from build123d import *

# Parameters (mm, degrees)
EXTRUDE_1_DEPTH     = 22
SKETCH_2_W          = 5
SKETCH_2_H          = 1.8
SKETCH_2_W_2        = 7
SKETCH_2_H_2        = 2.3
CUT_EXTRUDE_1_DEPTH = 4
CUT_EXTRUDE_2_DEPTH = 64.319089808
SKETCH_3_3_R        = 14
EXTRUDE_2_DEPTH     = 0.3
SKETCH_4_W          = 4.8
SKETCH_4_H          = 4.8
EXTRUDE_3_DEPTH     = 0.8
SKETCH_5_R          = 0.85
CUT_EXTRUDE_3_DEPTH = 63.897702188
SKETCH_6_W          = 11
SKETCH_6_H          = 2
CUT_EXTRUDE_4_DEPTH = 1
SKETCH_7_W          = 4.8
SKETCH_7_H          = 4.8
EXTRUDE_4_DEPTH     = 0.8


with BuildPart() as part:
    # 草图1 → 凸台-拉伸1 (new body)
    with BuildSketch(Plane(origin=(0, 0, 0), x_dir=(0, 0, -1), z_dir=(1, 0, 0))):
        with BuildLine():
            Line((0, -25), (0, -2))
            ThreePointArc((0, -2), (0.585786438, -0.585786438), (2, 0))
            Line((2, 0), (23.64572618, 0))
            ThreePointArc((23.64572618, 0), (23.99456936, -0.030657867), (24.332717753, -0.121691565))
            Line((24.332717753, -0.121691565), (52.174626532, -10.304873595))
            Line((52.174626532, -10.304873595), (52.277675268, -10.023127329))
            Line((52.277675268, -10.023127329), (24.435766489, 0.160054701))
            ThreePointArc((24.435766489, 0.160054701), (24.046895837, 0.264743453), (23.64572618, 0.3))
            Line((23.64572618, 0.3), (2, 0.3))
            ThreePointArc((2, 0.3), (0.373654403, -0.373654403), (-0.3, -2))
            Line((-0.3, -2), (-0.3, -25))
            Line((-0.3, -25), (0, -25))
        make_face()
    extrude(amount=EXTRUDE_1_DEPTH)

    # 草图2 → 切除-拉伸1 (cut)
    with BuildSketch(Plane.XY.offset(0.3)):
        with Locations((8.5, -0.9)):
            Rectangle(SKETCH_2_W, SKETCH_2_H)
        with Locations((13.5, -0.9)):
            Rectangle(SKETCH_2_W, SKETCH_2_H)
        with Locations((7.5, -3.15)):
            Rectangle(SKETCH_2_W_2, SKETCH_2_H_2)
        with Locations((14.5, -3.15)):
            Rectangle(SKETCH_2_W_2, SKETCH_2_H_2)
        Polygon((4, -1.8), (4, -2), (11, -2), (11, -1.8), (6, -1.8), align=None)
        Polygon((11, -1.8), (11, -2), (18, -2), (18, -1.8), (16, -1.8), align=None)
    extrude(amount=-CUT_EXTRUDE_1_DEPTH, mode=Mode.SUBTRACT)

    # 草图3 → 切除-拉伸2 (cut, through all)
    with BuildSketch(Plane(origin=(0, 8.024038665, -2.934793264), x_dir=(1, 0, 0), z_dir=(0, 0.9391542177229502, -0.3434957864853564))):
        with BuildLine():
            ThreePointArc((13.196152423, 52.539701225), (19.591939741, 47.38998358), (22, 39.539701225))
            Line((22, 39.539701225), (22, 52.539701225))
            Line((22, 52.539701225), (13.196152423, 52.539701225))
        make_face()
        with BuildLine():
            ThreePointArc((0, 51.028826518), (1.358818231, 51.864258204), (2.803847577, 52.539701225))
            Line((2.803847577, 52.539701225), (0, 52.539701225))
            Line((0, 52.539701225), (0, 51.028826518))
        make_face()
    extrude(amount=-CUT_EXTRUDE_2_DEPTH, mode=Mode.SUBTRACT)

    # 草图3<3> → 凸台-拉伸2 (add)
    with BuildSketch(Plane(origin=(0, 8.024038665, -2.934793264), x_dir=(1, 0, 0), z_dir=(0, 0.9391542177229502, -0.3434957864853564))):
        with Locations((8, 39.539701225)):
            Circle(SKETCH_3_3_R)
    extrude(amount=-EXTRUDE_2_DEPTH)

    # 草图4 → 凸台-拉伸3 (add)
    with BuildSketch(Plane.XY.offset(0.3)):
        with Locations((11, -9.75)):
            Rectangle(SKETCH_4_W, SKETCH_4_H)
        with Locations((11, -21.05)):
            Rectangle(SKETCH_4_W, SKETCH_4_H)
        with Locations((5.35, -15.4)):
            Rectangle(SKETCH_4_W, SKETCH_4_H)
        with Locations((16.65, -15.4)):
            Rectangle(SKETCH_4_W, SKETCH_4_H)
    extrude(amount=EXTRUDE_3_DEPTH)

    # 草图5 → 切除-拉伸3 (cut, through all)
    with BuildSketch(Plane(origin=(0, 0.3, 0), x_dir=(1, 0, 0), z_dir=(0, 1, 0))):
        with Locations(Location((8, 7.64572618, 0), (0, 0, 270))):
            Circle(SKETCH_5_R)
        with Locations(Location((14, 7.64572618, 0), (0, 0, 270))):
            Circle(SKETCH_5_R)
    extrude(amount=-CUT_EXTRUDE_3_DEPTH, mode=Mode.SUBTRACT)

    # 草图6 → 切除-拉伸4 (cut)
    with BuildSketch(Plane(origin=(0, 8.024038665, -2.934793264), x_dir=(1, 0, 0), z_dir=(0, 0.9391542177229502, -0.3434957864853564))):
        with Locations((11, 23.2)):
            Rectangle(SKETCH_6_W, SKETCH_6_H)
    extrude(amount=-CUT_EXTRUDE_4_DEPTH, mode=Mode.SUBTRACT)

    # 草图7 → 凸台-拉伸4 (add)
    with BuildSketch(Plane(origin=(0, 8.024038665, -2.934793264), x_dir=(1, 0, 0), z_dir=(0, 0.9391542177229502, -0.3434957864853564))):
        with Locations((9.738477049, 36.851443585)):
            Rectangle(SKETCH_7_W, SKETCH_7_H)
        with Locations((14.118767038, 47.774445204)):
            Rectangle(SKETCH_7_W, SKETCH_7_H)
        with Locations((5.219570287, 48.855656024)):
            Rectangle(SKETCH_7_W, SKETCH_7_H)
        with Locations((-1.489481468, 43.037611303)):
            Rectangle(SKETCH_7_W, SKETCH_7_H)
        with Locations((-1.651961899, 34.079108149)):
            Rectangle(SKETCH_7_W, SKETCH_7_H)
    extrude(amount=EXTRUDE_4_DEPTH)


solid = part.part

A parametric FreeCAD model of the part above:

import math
import FreeCAD as App
import Part
import Sketcher
Q = App.Units.Quantity

doc = App.newDocument("Part")
body = doc.addObject("PartDesign::Body", "Body")

# Sketch on YZ plane
sketch1 = body.newObject("Sketcher::SketchObject", "Sketch")
sketch1.AttachmentSupport = (doc.getObject("YZ_Plane"), [""])
sketch1.MapMode = "FlatFace"
sketch1.addGeometry(Part.LineSegment(App.Vector(-25, 0, 0), App.Vector(-2, 0, 0)), False)
sketch1.addGeometry(Part.ArcOfCircle(Part.Circle(App.Vector(-2, -2, 0), App.Vector(0, 0, 1), 2), math.radians(0), math.radians(90)), False)
sketch1.addGeometry(Part.LineSegment(App.Vector(0, -2, 0), App.Vector(0, -23.65, 0)), False)
sketch1.addGeometry(Part.ArcOfCircle(Part.Circle(App.Vector(-2, -23.65, 0), App.Vector(0, 0, 1), 2), math.radians(-20), math.radians(0)), False)
sketch1.addGeometry(Part.LineSegment(App.Vector(-0.12, -24.33, 0), App.Vector(-10.3, -52.17, 0)), False)
sketch1.addGeometry(Part.LineSegment(App.Vector(-10.3, -52.17, 0), App.Vector(-10.02, -52.28, 0)), False)
sketch1.addGeometry(Part.LineSegment(App.Vector(-10.02, -52.28, 0), App.Vector(0.16, -24.44, 0)), False)
sketch1.addGeometry(Part.ArcOfCircle(Part.Circle(App.Vector(-2, -23.65, 0), App.Vector(0, 0, 1), 2.3), math.radians(-20), math.radians(0)), False)
sketch1.addGeometry(Part.LineSegment(App.Vector(0.3, -23.65, 0), App.Vector(0.3, -2, 0)), False)
sketch1.addGeometry(Part.ArcOfCircle(Part.Circle(App.Vector(-2, -2, 0), App.Vector(0, 0, 1), 2.3), math.radians(0), math.radians(90)), False)
sketch1.addGeometry(Part.LineSegment(App.Vector(-2, 0.3, 0), App.Vector(-25, 0.3, 0)), False)
sketch1.addGeometry(Part.LineSegment(App.Vector(-25, 0.3, 0), App.Vector(-25, 0, 0)), False)
sketch1.addConstraint(Sketcher.Constraint("Tangent", 0, 2, 1, 2))
sketch1.addConstraint(Sketcher.Constraint("Tangent", 1, 1, 2, 1))
sketch1.addConstraint(Sketcher.Constraint("Tangent", 2, 2, 3, 2))
sketch1.addConstraint(Sketcher.Constraint("Tangent", 3, 1, 4, 1))
sketch1.addConstraint(Sketcher.Constraint("Coincident", 4, 2, 5, 1))
sketch1.addConstraint(Sketcher.Constraint("Coincident", 5, 2, 6, 1))
sketch1.addConstraint(Sketcher.Constraint("Tangent", 6, 2, 7, 1))
sketch1.addConstraint(Sketcher.Constraint("Tangent", 7, 2, 8, 1))
sketch1.addConstraint(Sketcher.Constraint("Tangent", 8, 2, 9, 1))
sketch1.addConstraint(Sketcher.Constraint("Tangent", 9, 2, 10, 1))
sketch1.addConstraint(Sketcher.Constraint("Coincident", 10, 2, 11, 1))
sketch1.addConstraint(Sketcher.Constraint("Coincident", 11, 2, 0, 1))
sketch1.addConstraint(Sketcher.Constraint("Horizontal", 0))
sketch1.addConstraint(Sketcher.Constraint("Vertical", 2))
sketch1.addConstraint(Sketcher.Constraint("Vertical", 8))
sketch1.addConstraint(Sketcher.Constraint("Horizontal", 10))
sketch1.addConstraint(Sketcher.Constraint("Vertical", 11))
sketch1.addConstraint(Sketcher.Constraint("Coincident", 7, 3, 3, 3))
sketch1.addConstraint(Sketcher.Constraint("Coincident", 9, 3, 1, 3))
sketch1.addConstraint(Sketcher.Constraint("Equal", 1, 3))
sketch1.addConstraint(Sketcher.Constraint("PointOnObject", 0, 2, -1))
sketch1.addConstraint(Sketcher.Constraint("PointOnObject", 1, 1, -2))
sketch1.addConstraint(Sketcher.Constraint("Perpendicular", 4, 5))
sketch1.addConstraint(Sketcher.Constraint("Perpendicular", 5, 6))
sketch1.addConstraint(Sketcher.Constraint("Radius", 1, 2.0))
sketch1.addConstraint(Sketcher.Constraint("Radius", 7, 2.3))
sketch1.addConstraint(Sketcher.Constraint("DistanceX", 0, 1, 0, 2, 23.0))
sketch1.addConstraint(Sketcher.Constraint("Angle", 4, Q("-110.09 deg")))
sketch1.addConstraint(Sketcher.Constraint("DistanceY", 4, 2, 7, 3, 28.5289))
sketch1.addConstraint(Sketcher.Constraint("DistanceY", 2, 2, 2, 1, 21.645726))
pad1 = body.newObject("PartDesign::Pad", "Pad")
pad1.Profile = sketch1
pad1.Length = 22

# Sketch on XY plane
sketch2 = body.newObject("Sketcher::SketchObject", "Sketch001")
sketch2.AttachmentSupport = (doc.getObject("XY_Plane"), [""])
sketch2.MapMode = "FlatFace"
sketch2.AttachmentOffset = App.Placement(App.Vector(0, 0, 0.3), App.Rotation())
sketch2.addGeometry(Part.LineSegment(App.Vector(6, 0, 0), App.Vector(6, -1.8, 0)), False)
sketch2.addGeometry(Part.LineSegment(App.Vector(6, -1.8, 0), App.Vector(4, -1.8, 0)), False)
sketch2.addGeometry(Part.LineSegment(App.Vector(4, -1.8, 0), App.Vector(4, -4.3, 0)), False)
sketch2.addGeometry(Part.LineSegment(App.Vector(4, -4.3, 0), App.Vector(18, -4.3, 0)), False)
sketch2.addGeometry(Part.LineSegment(App.Vector(18, -4.3, 0), App.Vector(18, -1.8, 0)), False)
sketch2.addGeometry(Part.LineSegment(App.Vector(18, -1.8, 0), App.Vector(16, -1.8, 0)), False)
sketch2.addGeometry(Part.LineSegment(App.Vector(16, -1.8, 0), App.Vector(16, 0, 0)), False)
sketch2.addGeometry(Part.LineSegment(App.Vector(16, 0, 0), App.Vector(6, 0, 0)), False)
sketch2.addConstraint(Sketcher.Constraint("Coincident", 0, 2, 1, 1))
sketch2.addConstraint(Sketcher.Constraint("Coincident", 1, 2, 2, 1))
sketch2.addConstraint(Sketcher.Constraint("Coincident", 2, 2, 3, 1))
sketch2.addConstraint(Sketcher.Constraint("Coincident", 3, 2, 4, 1))
sketch2.addConstraint(Sketcher.Constraint("Coincident", 4, 2, 5, 1))
sketch2.addConstraint(Sketcher.Constraint("Coincident", 5, 2, 6, 1))
sketch2.addConstraint(Sketcher.Constraint("Coincident", 6, 2, 7, 1))
sketch2.addConstraint(Sketcher.Constraint("Coincident", 7, 2, 0, 1))
sketch2.addConstraint(Sketcher.Constraint("Vertical", 0))
sketch2.addConstraint(Sketcher.Constraint("Horizontal", 1))
sketch2.addConstraint(Sketcher.Constraint("Vertical", 2))
sketch2.addConstraint(Sketcher.Constraint("Horizontal", 3))
sketch2.addConstraint(Sketcher.Constraint("Vertical", 4))
sketch2.addConstraint(Sketcher.Constraint("Horizontal", 5))
sketch2.addConstraint(Sketcher.Constraint("Vertical", 6))
sketch2.addConstraint(Sketcher.Constraint("Horizontal", 7))
sketch2.addConstraint(Sketcher.Constraint("PointOnObject", 6, 2, -1))
sketch2.addConstraint(Sketcher.Constraint("Horizontal", 1, 2, 4, 2))
sketch2.addConstraint(Sketcher.Constraint("Equal", 1, 5))
sketch2.addConstraint(Sketcher.Constraint("DistanceX", 1, 2, 1, 1, 2.0))
sketch2.addConstraint(Sketcher.Constraint("DistanceX", 3, 1, 3, 2, 14.0))
sketch2.addConstraint(Sketcher.Constraint("DistanceY", 0, 2, 0, 1, 1.8))
sketch2.addConstraint(Sketcher.Constraint("DistanceY", 2, 2, 2, 1, 2.5))
sketch2.addConstraint(Sketcher.Constraint("DistanceX", -1, 1, 0, 2, 6.0))
pocket1 = body.newObject("PartDesign::Pocket", "Pocket")
pocket1.Profile = sketch2
pocket1.Length = 4

# Sketch on an angled plane
sketch3 = body.newObject("Sketcher::SketchObject", "Sketch002")
sketch3.Placement = App.Placement(App.Vector(0, 8.024039, -2.934793), App.Rotation(App.Vector(1, 0, 0), App.Vector(0, -0.343495786, -0.939154218), App.Vector(0, 0.939154218, -0.343495786), "ZXY"))
sketch3.addGeometry(Part.ArcOfCircle(Part.Circle(App.Vector(8, 39.5, 0), App.Vector(0, 0, 1), 14), math.radians(0), math.radians(68)), False)
sketch3.addGeometry(Part.LineSegment(App.Vector(22, 39.5, 0), App.Vector(22, 52.5, 0)), False)
sketch3.addGeometry(Part.LineSegment(App.Vector(22, 52.5, 0), App.Vector(13.2, 52.5, 0)), False)
sketch3.addGeometry(Part.ArcOfCircle(Part.Circle(App.Vector(8, 39.5, 0), App.Vector(0, 0, 1), 14), math.radians(111.79), math.radians(124.85)), False)
sketch3.addGeometry(Part.LineSegment(App.Vector(2.8, 52.5, 0), App.Vector(0, 52.5, 0)), False)
sketch3.addGeometry(Part.LineSegment(App.Vector(0, 52.5, 0), App.Vector(0, 51, 0)), False)
sketch3.addConstraint(Sketcher.Constraint("Tangent", 0, 1, 1, 1))
sketch3.addConstraint(Sketcher.Constraint("Coincident", 1, 2, 2, 1))
sketch3.addConstraint(Sketcher.Constraint("Coincident", 2, 2, 0, 2))
sketch3.addConstraint(Sketcher.Constraint("Coincident", 3, 1, 4, 1))
sketch3.addConstraint(Sketcher.Constraint("Coincident", 4, 2, 5, 1))
sketch3.addConstraint(Sketcher.Constraint("Coincident", 5, 2, 3, 2))
sketch3.addConstraint(Sketcher.Constraint("Vertical", 1))
sketch3.addConstraint(Sketcher.Constraint("Horizontal", 2))
sketch3.addConstraint(Sketcher.Constraint("Horizontal", 4))
sketch3.addConstraint(Sketcher.Constraint("Vertical", 5))
sketch3.addConstraint(Sketcher.Constraint("Coincident", 3, 3, 0, 3))
sketch3.addConstraint(Sketcher.Constraint("Equal", 0, 3))
sketch3.addConstraint(Sketcher.Constraint("PointOnObject", 4, 2, -2))
sketch3.addConstraint(Sketcher.Constraint("Horizontal", 2, 2, 3, 1))
sketch3.addConstraint(Sketcher.Constraint("Radius", 0, 14.0))
sketch3.addConstraint(Sketcher.Constraint("DistanceY", 1, 1, 1, 2, 13.0))
sketch3.addConstraint(Sketcher.Constraint("DistanceX", -1, 1, 0, 3, 8.0))
sketch3.addConstraint(Sketcher.Constraint("DistanceY", -1, 1, 0, 3, 39.539701))
pocket2 = body.newObject("PartDesign::Pocket", "Pocket001")
pocket2.Profile = sketch3
pocket2.Type = "ThroughAll"

# Sketch on an angled plane
sketch4 = body.newObject("Sketcher::SketchObject", "Sketch003")
sketch4.Placement = App.Placement(App.Vector(0, 8.024039, -2.934793), App.Rotation(App.Vector(1, 0, 0), App.Vector(0, -0.343495786, -0.939154218), App.Vector(0, 0.939154218, -0.343495786), "ZXY"))
sketch4.addGeometry(Part.Circle(App.Vector(8, 40, 0), App.Vector(0, 0, 1), 14), False)
sketch4.addConstraint(Sketcher.Constraint("Diameter", 0, 28.0))
sketch4.addConstraint(Sketcher.Constraint("DistanceX", -1, 1, 0, 3, 8.0))
sketch4.addConstraint(Sketcher.Constraint("DistanceY", -1, 1, 0, 3, 39.539701))
pad2 = body.newObject("PartDesign::Pad", "Pad001")
pad2.Profile = sketch4
pad2.Length = 0.3
pad2.Reversed = True

# Sketch on XY plane
sketch5 = body.newObject("Sketcher::SketchObject", "Sketch004")
sketch5.AttachmentSupport = (doc.getObject("XY_Plane"), [""])
sketch5.MapMode = "FlatFace"
sketch5.AttachmentOffset = App.Placement(App.Vector(0, 0, 0.3), App.Rotation())
sketch5.addGeometry(Part.LineSegment(App.Vector(8.6, -7.3, 0), App.Vector(8.6, -12.2, 0)), False)
sketch5.addGeometry(Part.LineSegment(App.Vector(8.6, -12.2, 0), App.Vector(13.4, -12.2, 0)), False)
sketch5.addGeometry(Part.LineSegment(App.Vector(13.4, -12.2, 0), App.Vector(13.4, -7.3, 0)), False)
sketch5.addGeometry(Part.LineSegment(App.Vector(13.4, -7.3, 0), App.Vector(8.6, -7.3, 0)), False)
sketch5.addGeometry(Part.LineSegment(App.Vector(8.6, -18.6, 0), App.Vector(8.6, -23.4, 0)), False)
sketch5.addGeometry(Part.LineSegment(App.Vector(8.6, -23.4, 0), App.Vector(13.4, -23.4, 0)), False)
sketch5.addGeometry(Part.LineSegment(App.Vector(13.4, -23.4, 0), App.Vector(13.4, -18.6, 0)), False)
sketch5.addGeometry(Part.LineSegment(App.Vector(13.4, -18.6, 0), App.Vector(8.6, -18.6, 0)), False)
sketch5.addGeometry(Part.LineSegment(App.Vector(3, -13, 0), App.Vector(3, -17.8, 0)), False)
sketch5.addGeometry(Part.LineSegment(App.Vector(3, -17.8, 0), App.Vector(7.8, -17.8, 0)), False)
sketch5.addGeometry(Part.LineSegment(App.Vector(7.8, -17.8, 0), App.Vector(7.8, -13, 0)), False)
sketch5.addGeometry(Part.LineSegment(App.Vector(7.8, -13, 0), App.Vector(3, -13, 0)), False)
sketch5.addGeometry(Part.LineSegment(App.Vector(14.2, -13, 0), App.Vector(14.2, -17.8, 0)), False)
sketch5.addGeometry(Part.LineSegment(App.Vector(14.2, -17.8, 0), App.Vector(19.1, -17.8, 0)), False)
sketch5.addGeometry(Part.LineSegment(App.Vector(19.1, -17.8, 0), App.Vector(19.1, -13, 0)), False)
sketch5.addGeometry(Part.LineSegment(App.Vector(19.1, -13, 0), App.Vector(14.2, -13, 0)), False)
sketch5.addConstraint(Sketcher.Constraint("Coincident", 0, 2, 1, 1))
sketch5.addConstraint(Sketcher.Constraint("Coincident", 1, 2, 2, 1))
sketch5.addConstraint(Sketcher.Constraint("Coincident", 2, 2, 3, 1))
sketch5.addConstraint(Sketcher.Constraint("Coincident", 3, 2, 0, 1))
sketch5.addConstraint(Sketcher.Constraint("Coincident", 4, 2, 5, 1))
sketch5.addConstraint(Sketcher.Constraint("Coincident", 5, 2, 6, 1))
sketch5.addConstraint(Sketcher.Constraint("Coincident", 6, 2, 7, 1))
sketch5.addConstraint(Sketcher.Constraint("Coincident", 7, 2, 4, 1))
sketch5.addConstraint(Sketcher.Constraint("Coincident", 8, 2, 9, 1))
sketch5.addConstraint(Sketcher.Constraint("Coincident", 9, 2, 10, 1))
sketch5.addConstraint(Sketcher.Constraint("Coincident", 10, 2, 11, 1))
sketch5.addConstraint(Sketcher.Constraint("Coincident", 11, 2, 8, 1))
sketch5.addConstraint(Sketcher.Constraint("Coincident", 12, 2, 13, 1))
sketch5.addConstraint(Sketcher.Constraint("Coincident", 13, 2, 14, 1))
sketch5.addConstraint(Sketcher.Constraint("Coincident", 14, 2, 15, 1))
sketch5.addConstraint(Sketcher.Constraint("Coincident", 15, 2, 12, 1))
sketch5.addConstraint(Sketcher.Constraint("Vertical", 0))
sketch5.addConstraint(Sketcher.Constraint("Horizontal", 1))
sketch5.addConstraint(Sketcher.Constraint("Vertical", 2))
sketch5.addConstraint(Sketcher.Constraint("Horizontal", 3))
sketch5.addConstraint(Sketcher.Constraint("Vertical", 4))
sketch5.addConstraint(Sketcher.Constraint("Horizontal", 5))
sketch5.addConstraint(Sketcher.Constraint("Vertical", 6))
sketch5.addConstraint(Sketcher.Constraint("Horizontal", 7))
sketch5.addConstraint(Sketcher.Constraint("Vertical", 8))
sketch5.addConstraint(Sketcher.Constraint("Horizontal", 9))
sketch5.addConstraint(Sketcher.Constraint("Vertical", 10))
sketch5.addConstraint(Sketcher.Constraint("Horizontal", 11))
sketch5.addConstraint(Sketcher.Constraint("Vertical", 12))
sketch5.addConstraint(Sketcher.Constraint("Horizontal", 13))
sketch5.addConstraint(Sketcher.Constraint("Vertical", 14))
sketch5.addConstraint(Sketcher.Constraint("Horizontal", 15))
sketch5.addConstraint(Sketcher.Constraint("Horizontal", 9, 2, 12, 2))
sketch5.addConstraint(Sketcher.Constraint("Horizontal", 11, 2, 14, 2))
sketch5.addConstraint(Sketcher.Constraint("Vertical", 3, 2, 4, 2))
sketch5.addConstraint(Sketcher.Constraint("Vertical", 2, 2, 5, 2))
sketch5.addConstraint(Sketcher.Constraint("Equal", 7, 9))
sketch5.addConstraint(Sketcher.Constraint("Equal", 11, 13))
sketch5.addConstraint(Sketcher.Constraint("Equal", 15, 0))
sketch5.addConstraint(Sketcher.Constraint("Equal", 2, 4))
sketch5.addConstraint(Sketcher.Constraint("Equal", 6, 8))
sketch5.addConstraint(Sketcher.Constraint("DistanceX", 1, 1, 1, 2, 4.8))
sketch5.addConstraint(Sketcher.Constraint("DistanceY", 10, 2, -1, 1, 13.0))
sketch5.addConstraint(Sketcher.Constraint("DistanceX", -1, 1, 0, 2, 8.6))
sketch5.addConstraint(Sketcher.Constraint("DistanceY", 4, 2, 0, 2, 11.3))
sketch5.addConstraint(Sketcher.Constraint("DistanceX", 9, 2, 12, 2, 6.5))
sketch5.addConstraint(Sketcher.Constraint("DistanceY", 0, 2, -1, 1, 12.15))
sketch5.addConstraint(Sketcher.Constraint("DistanceX", -1, 1, 8, 2, 2.95))
pad3 = body.newObject("PartDesign::Pad", "Pad002")
pad3.Profile = sketch5
pad3.Length = 0.8

# Sketch on XZ plane
sketch6 = body.newObject("Sketcher::SketchObject", "Sketch005")
sketch6.AttachmentSupport = (doc.getObject("XZ_Plane"), [""])
sketch6.MapMode = "FlatFace"
sketch6.AttachmentOffset = App.Placement(App.Vector(0, 0, -0.3), App.Rotation())
sketch6.addGeometry(Part.Circle(App.Vector(8, -7.6, 0), App.Vector(0, 0, 1), 0.8), False)
sketch6.addGeometry(Part.Circle(App.Vector(14, -7.6, 0), App.Vector(0, 0, 1), 0.8), False)
sketch6.addConstraint(Sketcher.Constraint("Equal", 0, 1))
sketch6.addConstraint(Sketcher.Constraint("Horizontal", 0, 3, 1, 3))
sketch6.addConstraint(Sketcher.Constraint("Diameter", 0, 1.7))
sketch6.addConstraint(Sketcher.Constraint("DistanceX", -1, 1, 0, 3, 8.0))
sketch6.addConstraint(Sketcher.Constraint("DistanceX", -1, 1, 1, 3, 14.0))
sketch6.addConstraint(Sketcher.Constraint("DistanceY", 0, 3, -1, 1, 7.645726))
pocket3 = body.newObject("PartDesign::Pocket", "Pocket002")
pocket3.Profile = sketch6
pocket3.Type = "ThroughAll"
pocket3.Reversed = True

# Sketch on an angled plane
sketch7 = body.newObject("Sketcher::SketchObject", "Sketch006")
sketch7.Placement = App.Placement(App.Vector(0, 8.024039, -2.934793), App.Rotation(App.Vector(1, 0, 0), App.Vector(0, -0.343495786, -0.939154218), App.Vector(0, 0.939154218, -0.343495786), "ZXY"))
sketch7.addGeometry(Part.LineSegment(App.Vector(5.5, 24.2, 0), App.Vector(5.5, 22.2, 0)), False)
sketch7.addGeometry(Part.LineSegment(App.Vector(5.5, 22.2, 0), App.Vector(16.5, 22.2, 0)), False)
sketch7.addGeometry(Part.LineSegment(App.Vector(16.5, 22.2, 0), App.Vector(16.5, 24.2, 0)), False)
sketch7.addGeometry(Part.LineSegment(App.Vector(16.5, 24.2, 0), App.Vector(5.5, 24.2, 0)), False)
sketch7.addConstraint(Sketcher.Constraint("Coincident", 0, 2, 1, 1))
sketch7.addConstraint(Sketcher.Constraint("Coincident", 1, 2, 2, 1))
sketch7.addConstraint(Sketcher.Constraint("Coincident", 2, 2, 3, 1))
sketch7.addConstraint(Sketcher.Constraint("Coincident", 3, 2, 0, 1))
sketch7.addConstraint(Sketcher.Constraint("Vertical", 0))
sketch7.addConstraint(Sketcher.Constraint("Horizontal", 1))
sketch7.addConstraint(Sketcher.Constraint("Vertical", 2))
sketch7.addConstraint(Sketcher.Constraint("Horizontal", 3))
sketch7.addConstraint(Sketcher.Constraint("DistanceX", 1, 1, 1, 2, 11.0))
sketch7.addConstraint(Sketcher.Constraint("DistanceY", 0, 2, 0, 1, 2.0))
sketch7.addConstraint(Sketcher.Constraint("DistanceX", -1, 1, 0, 2, 5.5))
sketch7.addConstraint(Sketcher.Constraint("DistanceY", -1, 1, 0, 2, 22.2))
pocket4 = body.newObject("PartDesign::Pocket", "Pocket003")
pocket4.Profile = sketch7
pocket4.Length = 1

# Sketch on an angled plane
sketch8 = body.newObject("Sketcher::SketchObject", "Sketch007")
sketch8.Placement = App.Placement(App.Vector(0, 8.024039, -2.934793), App.Rotation(App.Vector(1, 0, 0), App.Vector(0, -0.343495786, -0.939154218), App.Vector(0, 0.939154218, -0.343495786), "ZXY"))
sketch8.addGeometry(Part.LineSegment(App.Vector(7.3, 39.3, 0), App.Vector(7.3, 34.5, 0)), False)
sketch8.addGeometry(Part.LineSegment(App.Vector(7.3, 34.5, 0), App.Vector(12.1, 34.5, 0)), False)
sketch8.addGeometry(Part.LineSegment(App.Vector(12.1, 34.5, 0), App.Vector(12.1, 39.3, 0)), False)
sketch8.addGeometry(Part.LineSegment(App.Vector(12.1, 39.3, 0), App.Vector(7.3, 39.3, 0)), False)
sketch8.addGeometry(Part.LineSegment(App.Vector(11.7, 50.2, 0), App.Vector(11.7, 45.4, 0)), False)
sketch8.addGeometry(Part.LineSegment(App.Vector(11.7, 45.4, 0), App.Vector(16.5, 45.4, 0)), False)
sketch8.addGeometry(Part.LineSegment(App.Vector(16.5, 45.4, 0), App.Vector(16.5, 50.2, 0)), False)
sketch8.addGeometry(Part.LineSegment(App.Vector(16.5, 50.2, 0), App.Vector(11.7, 50.2, 0)), False)
sketch8.addGeometry(Part.LineSegment(App.Vector(2.8, 51.3, 0), App.Vector(2.8, 46.5, 0)), False)
sketch8.addGeometry(Part.LineSegment(App.Vector(2.8, 46.5, 0), App.Vector(7.6, 46.5, 0)), False)
sketch8.addGeometry(Part.LineSegment(App.Vector(7.6, 46.5, 0), App.Vector(7.6, 51.3, 0)), False)
sketch8.addGeometry(Part.LineSegment(App.Vector(7.6, 51.3, 0), App.Vector(2.8, 51.3, 0)), False)
sketch8.addGeometry(Part.LineSegment(App.Vector(-3.9, 45.4, 0), App.Vector(-3.9, 40.6, 0)), False)
sketch8.addGeometry(Part.LineSegment(App.Vector(-3.9, 40.6, 0), App.Vector(0.9, 40.6, 0)), False)
sketch8.addGeometry(Part.LineSegment(App.Vector(0.9, 40.6, 0), App.Vector(0.9, 45.4, 0)), False)
sketch8.addGeometry(Part.LineSegment(App.Vector(0.9, 45.4, 0), App.Vector(-3.9, 45.4, 0)), False)
sketch8.addGeometry(Part.LineSegment(App.Vector(-4.1, 36.5, 0), App.Vector(-4.1, 31.7, 0)), False)
sketch8.addGeometry(Part.LineSegment(App.Vector(-4.1, 31.7, 0), App.Vector(0.7, 31.7, 0)), False)
sketch8.addGeometry(Part.LineSegment(App.Vector(0.7, 31.7, 0), App.Vector(0.7, 36.5, 0)), False)
sketch8.addGeometry(Part.LineSegment(App.Vector(0.7, 36.5, 0), App.Vector(-4.1, 36.5, 0)), False)
sketch8.addConstraint(Sketcher.Constraint("Coincident", 0, 2, 1, 1))
sketch8.addConstraint(Sketcher.Constraint("Coincident", 1, 2, 2, 1))
sketch8.addConstraint(Sketcher.Constraint("Coincident", 2, 2, 3, 1))
sketch8.addConstraint(Sketcher.Constraint("Coincident", 3, 2, 0, 1))
sketch8.addConstraint(Sketcher.Constraint("Coincident", 4, 2, 5, 1))
sketch8.addConstraint(Sketcher.Constraint("Coincident", 5, 2, 6, 1))
sketch8.addConstraint(Sketcher.Constraint("Coincident", 6, 2, 7, 1))
sketch8.addConstraint(Sketcher.Constraint("Coincident", 7, 2, 4, 1))
sketch8.addConstraint(Sketcher.Constraint("Coincident", 8, 2, 9, 1))
sketch8.addConstraint(Sketcher.Constraint("Coincident", 9, 2, 10, 1))
sketch8.addConstraint(Sketcher.Constraint("Coincident", 10, 2, 11, 1))
sketch8.addConstraint(Sketcher.Constraint("Coincident", 11, 2, 8, 1))
sketch8.addConstraint(Sketcher.Constraint("Coincident", 12, 2, 13, 1))
sketch8.addConstraint(Sketcher.Constraint("Coincident", 13, 2, 14, 1))
sketch8.addConstraint(Sketcher.Constraint("Coincident", 14, 2, 15, 1))
sketch8.addConstraint(Sketcher.Constraint("Coincident", 15, 2, 12, 1))
sketch8.addConstraint(Sketcher.Constraint("Coincident", 16, 2, 17, 1))
sketch8.addConstraint(Sketcher.Constraint("Coincident", 17, 2, 18, 1))
sketch8.addConstraint(Sketcher.Constraint("Coincident", 18, 2, 19, 1))
sketch8.addConstraint(Sketcher.Constraint("Coincident", 19, 2, 16, 1))
sketch8.addConstraint(Sketcher.Constraint("Vertical", 0))
sketch8.addConstraint(Sketcher.Constraint("Horizontal", 1))
sketch8.addConstraint(Sketcher.Constraint("Vertical", 2))
sketch8.addConstraint(Sketcher.Constraint("Horizontal", 3))
sketch8.addConstraint(Sketcher.Constraint("Vertical", 4))
sketch8.addConstraint(Sketcher.Constraint("Horizontal", 5))
sketch8.addConstraint(Sketcher.Constraint("Vertical", 6))
sketch8.addConstraint(Sketcher.Constraint("Horizontal", 7))
sketch8.addConstraint(Sketcher.Constraint("Vertical", 8))
sketch8.addConstraint(Sketcher.Constraint("Horizontal", 9))
sketch8.addConstraint(Sketcher.Constraint("Vertical", 10))
sketch8.addConstraint(Sketcher.Constraint("Horizontal", 11))
sketch8.addConstraint(Sketcher.Constraint("Vertical", 12))
sketch8.addConstraint(Sketcher.Constraint("Horizontal", 13))
sketch8.addConstraint(Sketcher.Constraint("Vertical", 14))
sketch8.addConstraint(Sketcher.Constraint("Horizontal", 15))
sketch8.addConstraint(Sketcher.Constraint("Vertical", 16))
sketch8.addConstraint(Sketcher.Constraint("Horizontal", 17))
sketch8.addConstraint(Sketcher.Constraint("Vertical", 18))
sketch8.addConstraint(Sketcher.Constraint("Horizontal", 19))
sketch8.addConstraint(Sketcher.Constraint("Equal", 3, 5))
sketch8.addConstraint(Sketcher.Constraint("Equal", 7, 9))
sketch8.addConstraint(Sketcher.Constraint("Equal", 11, 13))
sketch8.addConstraint(Sketcher.Constraint("Equal", 15, 17))
sketch8.addConstraint(Sketcher.Constraint("Equal", 19, 0))
sketch8.addConstraint(Sketcher.Constraint("Equal", 2, 4))
sketch8.addConstraint(Sketcher.Constraint("Equal", 6, 8))
sketch8.addConstraint(Sketcher.Constraint("Equal", 10, 12))
sketch8.addConstraint(Sketcher.Constraint("Equal", 14, 16))
sketch8.addConstraint(Sketcher.Constraint("DistanceX", 1, 1, 1, 2, 4.8))
sketch8.addConstraint(Sketcher.Constraint("DistanceY", 2, 2, 4, 2, 6.123002))
sketch8.addConstraint(Sketcher.Constraint("DistanceX", -1, 1, 8, 2, 2.81957))
sketch8.addConstraint(Sketcher.Constraint("DistanceX", 12, 2, -1, 1, 3.889481))
sketch8.addConstraint(Sketcher.Constraint("DistanceY", -1, 1, 12, 2, 40.637611))
sketch8.addConstraint(Sketcher.Constraint("DistanceX", 16, 2, -1, 1, 4.051962))
sketch8.addConstraint(Sketcher.Constraint("DistanceY", -1, 1, 16, 2, 31.679108))
sketch8.addConstraint(Sketcher.Constraint("DistanceX", 4, 2, 2, 2, 0.41971))
sketch8.addConstraint(Sketcher.Constraint("DistanceY", 4, 2, 8, 2, 1.081211))
sketch8.addConstraint(Sketcher.Constraint("DistanceX", 12, 2, 3, 2, 11.227959))
sketch8.addConstraint(Sketcher.Constraint("DistanceY", -1, 1, 0, 2, 34.451444))
pad4 = body.newObject("PartDesign::Pad", "Pad003")
pad4.Profile = sketch8
pad4.Length = 0.8

doc.recompute()
